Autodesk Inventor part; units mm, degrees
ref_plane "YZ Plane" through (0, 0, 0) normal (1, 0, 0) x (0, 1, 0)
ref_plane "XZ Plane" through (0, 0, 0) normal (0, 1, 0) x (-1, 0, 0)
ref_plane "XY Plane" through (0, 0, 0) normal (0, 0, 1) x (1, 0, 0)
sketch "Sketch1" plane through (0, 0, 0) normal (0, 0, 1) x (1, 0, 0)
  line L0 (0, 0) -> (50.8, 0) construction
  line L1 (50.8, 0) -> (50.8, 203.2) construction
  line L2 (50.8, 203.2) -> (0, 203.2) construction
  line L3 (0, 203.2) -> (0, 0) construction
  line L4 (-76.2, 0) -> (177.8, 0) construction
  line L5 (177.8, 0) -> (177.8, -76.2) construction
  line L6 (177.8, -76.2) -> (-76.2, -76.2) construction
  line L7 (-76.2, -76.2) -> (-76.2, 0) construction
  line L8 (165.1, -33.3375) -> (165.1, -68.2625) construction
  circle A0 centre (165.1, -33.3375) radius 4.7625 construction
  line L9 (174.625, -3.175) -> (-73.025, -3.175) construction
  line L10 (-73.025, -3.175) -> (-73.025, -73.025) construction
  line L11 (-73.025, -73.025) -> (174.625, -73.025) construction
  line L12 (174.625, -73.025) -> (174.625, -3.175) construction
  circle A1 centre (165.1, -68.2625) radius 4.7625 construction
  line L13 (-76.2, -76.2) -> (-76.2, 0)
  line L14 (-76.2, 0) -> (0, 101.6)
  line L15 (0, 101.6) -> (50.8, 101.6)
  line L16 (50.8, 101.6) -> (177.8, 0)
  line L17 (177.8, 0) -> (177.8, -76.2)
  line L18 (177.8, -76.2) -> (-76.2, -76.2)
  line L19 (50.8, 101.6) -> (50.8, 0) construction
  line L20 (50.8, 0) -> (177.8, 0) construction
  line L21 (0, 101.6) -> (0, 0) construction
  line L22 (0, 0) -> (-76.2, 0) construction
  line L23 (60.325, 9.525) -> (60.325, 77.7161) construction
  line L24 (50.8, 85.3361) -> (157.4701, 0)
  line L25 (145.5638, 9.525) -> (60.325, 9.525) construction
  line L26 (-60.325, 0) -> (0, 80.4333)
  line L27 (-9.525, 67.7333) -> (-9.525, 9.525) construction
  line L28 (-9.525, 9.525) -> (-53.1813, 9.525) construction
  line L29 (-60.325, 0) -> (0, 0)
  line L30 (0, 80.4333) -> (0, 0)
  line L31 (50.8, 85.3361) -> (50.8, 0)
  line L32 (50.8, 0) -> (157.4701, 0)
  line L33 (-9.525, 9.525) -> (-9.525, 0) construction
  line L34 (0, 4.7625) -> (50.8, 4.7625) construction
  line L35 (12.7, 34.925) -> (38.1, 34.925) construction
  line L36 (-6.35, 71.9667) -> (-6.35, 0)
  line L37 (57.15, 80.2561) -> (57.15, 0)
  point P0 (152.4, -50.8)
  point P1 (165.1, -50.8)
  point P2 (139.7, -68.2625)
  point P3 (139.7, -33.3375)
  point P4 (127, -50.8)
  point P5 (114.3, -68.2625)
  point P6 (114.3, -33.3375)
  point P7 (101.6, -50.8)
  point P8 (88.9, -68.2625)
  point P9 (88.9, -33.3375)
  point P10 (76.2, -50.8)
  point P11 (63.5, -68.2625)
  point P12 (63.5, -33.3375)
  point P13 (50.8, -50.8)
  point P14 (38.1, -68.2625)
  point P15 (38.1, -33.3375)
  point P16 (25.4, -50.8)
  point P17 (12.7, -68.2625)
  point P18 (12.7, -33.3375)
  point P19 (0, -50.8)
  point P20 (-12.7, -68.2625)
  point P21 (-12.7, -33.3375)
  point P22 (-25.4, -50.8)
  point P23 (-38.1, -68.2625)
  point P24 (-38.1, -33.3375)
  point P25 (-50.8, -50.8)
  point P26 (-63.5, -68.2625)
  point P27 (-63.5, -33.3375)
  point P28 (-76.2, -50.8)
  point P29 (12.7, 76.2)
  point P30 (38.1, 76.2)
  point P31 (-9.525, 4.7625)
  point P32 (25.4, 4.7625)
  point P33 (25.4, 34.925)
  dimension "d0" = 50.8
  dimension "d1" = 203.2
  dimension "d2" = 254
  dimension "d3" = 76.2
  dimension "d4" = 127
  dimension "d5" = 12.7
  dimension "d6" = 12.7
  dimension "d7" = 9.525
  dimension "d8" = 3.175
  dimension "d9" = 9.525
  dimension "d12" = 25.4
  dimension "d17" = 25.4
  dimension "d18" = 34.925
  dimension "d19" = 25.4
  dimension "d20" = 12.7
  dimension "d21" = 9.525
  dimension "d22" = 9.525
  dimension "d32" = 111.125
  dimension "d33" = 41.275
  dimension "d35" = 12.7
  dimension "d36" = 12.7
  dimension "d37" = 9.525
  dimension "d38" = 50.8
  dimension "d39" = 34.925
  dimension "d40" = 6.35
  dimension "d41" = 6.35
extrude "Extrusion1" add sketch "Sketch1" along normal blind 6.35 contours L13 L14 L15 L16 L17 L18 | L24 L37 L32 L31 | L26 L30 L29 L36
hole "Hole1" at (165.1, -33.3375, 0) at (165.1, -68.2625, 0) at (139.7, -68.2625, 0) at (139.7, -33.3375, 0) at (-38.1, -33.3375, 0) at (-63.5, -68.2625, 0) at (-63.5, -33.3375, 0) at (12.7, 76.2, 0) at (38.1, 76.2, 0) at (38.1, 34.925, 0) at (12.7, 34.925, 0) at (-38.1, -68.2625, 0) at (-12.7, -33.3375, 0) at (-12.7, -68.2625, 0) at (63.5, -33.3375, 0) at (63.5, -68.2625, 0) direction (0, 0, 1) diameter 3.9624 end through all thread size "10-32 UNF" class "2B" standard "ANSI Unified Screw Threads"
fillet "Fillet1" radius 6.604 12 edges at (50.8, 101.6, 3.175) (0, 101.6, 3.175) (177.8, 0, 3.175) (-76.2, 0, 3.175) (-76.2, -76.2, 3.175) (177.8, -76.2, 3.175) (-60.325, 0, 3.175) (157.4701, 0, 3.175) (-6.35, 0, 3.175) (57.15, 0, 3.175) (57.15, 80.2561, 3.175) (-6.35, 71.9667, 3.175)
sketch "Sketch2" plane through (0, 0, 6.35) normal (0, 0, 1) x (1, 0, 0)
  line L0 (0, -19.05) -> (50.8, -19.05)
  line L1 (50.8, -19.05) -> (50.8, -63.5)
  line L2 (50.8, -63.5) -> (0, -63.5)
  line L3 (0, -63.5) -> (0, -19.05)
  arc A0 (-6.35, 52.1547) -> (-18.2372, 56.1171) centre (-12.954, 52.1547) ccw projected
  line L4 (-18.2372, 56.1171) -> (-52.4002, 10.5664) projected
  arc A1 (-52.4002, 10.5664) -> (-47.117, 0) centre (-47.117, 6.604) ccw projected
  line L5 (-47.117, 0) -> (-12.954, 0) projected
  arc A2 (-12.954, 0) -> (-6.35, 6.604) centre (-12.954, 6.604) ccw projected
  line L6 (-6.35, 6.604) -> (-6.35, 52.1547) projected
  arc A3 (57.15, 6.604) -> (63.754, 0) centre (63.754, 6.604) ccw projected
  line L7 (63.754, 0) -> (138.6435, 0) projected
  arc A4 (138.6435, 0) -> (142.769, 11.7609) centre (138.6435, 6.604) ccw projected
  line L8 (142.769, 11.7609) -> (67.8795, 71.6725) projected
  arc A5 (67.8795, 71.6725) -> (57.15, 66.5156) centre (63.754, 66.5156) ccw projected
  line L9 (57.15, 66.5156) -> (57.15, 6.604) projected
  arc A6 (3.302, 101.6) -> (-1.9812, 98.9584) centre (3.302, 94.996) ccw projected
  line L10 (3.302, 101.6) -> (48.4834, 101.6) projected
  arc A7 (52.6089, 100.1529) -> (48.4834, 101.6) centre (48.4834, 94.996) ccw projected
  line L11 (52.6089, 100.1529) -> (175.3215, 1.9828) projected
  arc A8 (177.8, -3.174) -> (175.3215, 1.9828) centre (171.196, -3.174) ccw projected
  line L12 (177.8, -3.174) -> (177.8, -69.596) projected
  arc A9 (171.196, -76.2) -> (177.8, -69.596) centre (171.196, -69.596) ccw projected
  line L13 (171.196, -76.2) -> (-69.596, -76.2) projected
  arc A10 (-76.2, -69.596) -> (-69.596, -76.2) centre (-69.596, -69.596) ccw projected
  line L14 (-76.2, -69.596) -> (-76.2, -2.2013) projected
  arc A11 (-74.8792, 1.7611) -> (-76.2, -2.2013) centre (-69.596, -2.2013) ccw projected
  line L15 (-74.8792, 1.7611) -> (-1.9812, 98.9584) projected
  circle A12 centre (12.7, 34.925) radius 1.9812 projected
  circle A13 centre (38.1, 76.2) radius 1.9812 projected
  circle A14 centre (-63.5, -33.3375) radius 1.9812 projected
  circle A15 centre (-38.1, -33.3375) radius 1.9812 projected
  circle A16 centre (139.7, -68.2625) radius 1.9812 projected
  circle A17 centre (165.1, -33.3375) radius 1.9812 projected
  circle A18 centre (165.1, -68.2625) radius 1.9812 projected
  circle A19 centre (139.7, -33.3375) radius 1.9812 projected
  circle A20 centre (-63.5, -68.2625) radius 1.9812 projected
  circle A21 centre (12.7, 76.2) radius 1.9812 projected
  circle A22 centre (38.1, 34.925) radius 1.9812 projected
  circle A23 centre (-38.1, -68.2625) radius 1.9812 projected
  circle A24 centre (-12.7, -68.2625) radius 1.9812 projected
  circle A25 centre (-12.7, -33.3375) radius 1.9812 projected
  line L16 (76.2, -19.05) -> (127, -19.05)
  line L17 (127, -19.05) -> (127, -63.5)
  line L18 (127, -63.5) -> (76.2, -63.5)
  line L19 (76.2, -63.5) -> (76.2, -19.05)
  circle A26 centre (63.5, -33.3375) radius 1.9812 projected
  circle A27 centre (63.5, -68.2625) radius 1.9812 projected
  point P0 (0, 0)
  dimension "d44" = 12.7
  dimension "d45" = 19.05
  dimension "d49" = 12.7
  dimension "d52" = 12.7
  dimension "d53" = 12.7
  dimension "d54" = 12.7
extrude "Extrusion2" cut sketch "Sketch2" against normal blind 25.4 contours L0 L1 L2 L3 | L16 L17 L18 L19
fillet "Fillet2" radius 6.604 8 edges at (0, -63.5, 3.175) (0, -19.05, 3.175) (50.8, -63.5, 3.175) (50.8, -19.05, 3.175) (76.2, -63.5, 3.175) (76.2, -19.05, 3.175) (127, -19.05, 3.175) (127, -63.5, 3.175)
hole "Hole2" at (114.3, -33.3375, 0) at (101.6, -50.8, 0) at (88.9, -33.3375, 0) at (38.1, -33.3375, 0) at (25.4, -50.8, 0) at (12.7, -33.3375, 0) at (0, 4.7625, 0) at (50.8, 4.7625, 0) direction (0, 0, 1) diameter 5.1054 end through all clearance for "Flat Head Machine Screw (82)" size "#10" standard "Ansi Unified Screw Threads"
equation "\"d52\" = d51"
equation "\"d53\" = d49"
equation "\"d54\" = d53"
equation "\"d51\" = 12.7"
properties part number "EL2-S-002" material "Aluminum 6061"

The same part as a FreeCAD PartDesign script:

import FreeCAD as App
import Part
import Sketcher
Q = App.Units.Quantity


def edges_at(feature, points):
    """Names of the edges that pass closest to the given points."""
    edges = feature.Shape.Edges
    near = lambda p: min(range(len(edges)), key=lambda i: edges[i].distToShape(Part.Vertex(*p))[0])
    return sorted({f"Edge{near(p) + 1}" for p in points})


def add_polygon(sketch, points):
    """Adds a closed chain of lines whose ends are joined by coincident constraints."""
    first, n = sketch.GeometryCount, len(points)
    for a, b in zip(points, points[1:] + points[:1]):
        sketch.addGeometry(Part.LineSegment(App.Vector(*a, 0), App.Vector(*b, 0)), False)
    for i in range(n):
        sketch.addConstraint(Sketcher.Constraint("Coincident", first + i, 2, first + (i + 1) % n, 1))

doc = App.newDocument("Part")
params = doc.addObject("Spreadsheet::Sheet", "Params")
for row, (alias, value) in enumerate([
    ("sketch1_width", "10 in"),
    ("sketch1_width2", "2 in"),
    ("sketch1_height", "3 in"),
    ("sketch1_length", "5 in"),
    ("pad1_length", "0.25 in"),
    ("sketch2_diameter", "0.156 in"),
    ("hole_diameter", "0.156 in"),
    ("fillet_radius", "0.26 in"),
    ("sketch3_width", "2 in"),
    ("sketch3_height", "1.75 in"),
    ("pocket1_length", "1 in"),
    ("fillet2_radius", "0.26 in"),
    ("sketch4_diameter", "0.201 in"),
    ("hole2_diameter", "0.201 in"),
], start=1):
    params.set(f"A{row}", alias)
    params.set(f"B{row}", "=" + value)
    params.setAlias(f"B{row}", alias)

body = doc.addObject("PartDesign::Body", "Body")

sketch1 = body.newObject("Sketcher::SketchObject", "Sketch")
sketch1.AttachmentSupport = (doc.getObject("XY_Plane"), [""])
sketch1.MapMode = "FlatFace"
add_polygon(sketch1, [(-76, 0), (-76, -76), (178, -76), (178, 0), (51, 102), (0, 102)])
add_polygon(sketch1, [(-6, 0), (-60, 0), (-6, 72)])
add_polygon(sketch1, [(157, 0), (57, 0), (57, 80)])
sketch1.addConstraint([
    Sketcher.Constraint("Vertical", 0),
    Sketcher.Constraint("Horizontal", 1),
    Sketcher.Constraint("Vertical", 2),
    Sketcher.Constraint("Horizontal", 4),
    Sketcher.Constraint("Horizontal", 6),
    Sketcher.Constraint("Vertical", 8),
    Sketcher.Constraint("Horizontal", 9),
    Sketcher.Constraint("Vertical", 10),
    Sketcher.Constraint("PointOnObject", 2, 2, -1),
    Sketcher.Constraint("PointOnObject", 4, 2, -2),
    Sketcher.Constraint("PointOnObject", 5, 2, -1),
    Sketcher.Constraint("PointOnObject", 6, 2, -1),
    Sketcher.Constraint("PointOnObject", 9, 2, -1),
    Sketcher.Constraint("Parallel", 5, 7),
    Sketcher.Constraint("Parallel", 3, 11),
    Sketcher.Constraint("DistanceX", 1, 1, 1, 2, Q("10 in")),
    Sketcher.Constraint("DistanceX", 4, 2, 4, 1, Q("2 in")),
    Sketcher.Constraint("DistanceY", 0, 2, 0, 1, Q("3 in")),
    Sketcher.Constraint("Distance", 5, Q("5 in")),
    Sketcher.Constraint("DistanceX", 0, 2, -1, 1, Q("3 in")),
    Sketcher.Constraint("DistanceX", 7, 2, -1, 1, Q("0.25 in")),
    Sketcher.Constraint("DistanceX", 3, 2, 9, 2, Q("0.25 in")),
    Sketcher.Constraint("DistanceX", 6, 2, 3, 2, Q("4.375 in")),
    Sketcher.Constraint("DistanceX", 9, 2, 9, 1, Q("3.9496 in")),
])
sketch1.setExpression("Constraints[27]", "Params.sketch1_width")
sketch1.setExpression("Constraints[28]", "Params.sketch1_width2")
sketch1.setExpression("Constraints[29]", "Params.sketch1_height")
sketch1.setExpression("Constraints[30]", "Params.sketch1_length")
pad1 = body.newObject("PartDesign::Pad", "Pad")
pad1.Profile = sketch1
pad1.setExpression("Length", "Params.pad1_length")

sketch2 = body.newObject("Sketcher::SketchObject", "Sketch001")
sketch2.AttachmentSupport = (doc.getObject("XY_Plane"), [""])
sketch2.MapMode = "FlatFace"
sketch2.addGeometry([
    Part.Circle(App.Vector(165.1, -33.3, 0), App.Vector(0, 0, 1), 2),
    Part.Circle(App.Vector(165.1, -68.3, 0), App.Vector(0, 0, 1), 2),
    Part.Circle(App.Vector(139.7, -68.3, 0), App.Vector(0, 0, 1), 2),
    Part.Circle(App.Vector(139.7, -33.3, 0), App.Vector(0, 0, 1), 2),
    Part.Circle(App.Vector(-38.1, -33.3, 0), App.Vector(0, 0, 1), 2),
    Part.Circle(App.Vector(-63.5, -68.3, 0), App.Vector(0, 0, 1), 2),
    Part.Circle(App.Vector(-63.5, -33.3, 0), App.Vector(0, 0, 1), 2),
    Part.Circle(App.Vector(12.7, 76.2, 0), App.Vector(0, 0, 1), 2),
    Part.Circle(App.Vector(38.1, 76.2, 0), App.Vector(0, 0, 1), 2),
    Part.Circle(App.Vector(38.1, 34.9, 0), App.Vector(0, 0, 1), 2),
    Part.Circle(App.Vector(12.7, 34.9, 0), App.Vector(0, 0, 1), 2),
    Part.Circle(App.Vector(-38.1, -68.3, 0), App.Vector(0, 0, 1), 2),
    Part.Circle(App.Vector(-12.7, -33.3, 0), App.Vector(0, 0, 1), 2),
    Part.Circle(App.Vector(-12.7, -68.3, 0), App.Vector(0, 0, 1), 2),
    Part.Circle(App.Vector(63.5, -33.3, 0), App.Vector(0, 0, 1), 2),
    Part.Circle(App.Vector(63.5, -68.3, 0), App.Vector(0, 0, 1), 2),
], False)
sketch2.addConstraint([
    Sketcher.Constraint("Equal", 0, 1),
    Sketcher.Constraint("Equal", 1, 2),
    Sketcher.Constraint("Equal", 2, 3),
    Sketcher.Constraint("Equal", 3, 4),
    Sketcher.Constraint("Equal", 4, 5),
    Sketcher.Constraint("Equal", 5, 6),
    Sketcher.Constraint("Equal", 6, 7),
    Sketcher.Constraint("Equal", 7, 8),
    Sketcher.Constraint("Equal", 8, 9),
    Sketcher.Constraint("Equal", 9, 10),
    Sketcher.Constraint("Equal", 10, 11),
    Sketcher.Constraint("Equal", 11, 12),
    Sketcher.Constraint("Equal", 12, 13),
    Sketcher.Constraint("Equal", 13, 14),
    Sketcher.Constraint("Equal", 14, 15),
    Sketcher.Constraint("Symmetric", 6, 3, 14, 3, -2),
    Sketcher.Constraint("Symmetric", 5, 3, 15, 3, -2),
    Sketcher.Constraint("Horizontal", 1, 3, 2, 3),
    Sketcher.Constraint("Horizontal", 0, 3, 3, 3),
    Sketcher.Constraint("Horizontal", 3, 3, 4, 3),
    Sketcher.Constraint("Horizontal", 2, 3, 5, 3),
    Sketcher.Constraint("Horizontal", 4, 3, 6, 3),
    Sketcher.Constraint("Horizontal", 7, 3, 8, 3),
    Sketcher.Constraint("Horizontal", 9, 3, 10, 3),
    Sketcher.Constraint("Horizontal", 5, 3, 11, 3),
    Sketcher.Constraint("Horizontal", 6, 3, 12, 3),
    Sketcher.Constraint("Horizontal", 11, 3, 13, 3),
    Sketcher.Constraint("Vertical", 0, 3, 1, 3),
    Sketcher.Constraint("Vertical", 2, 3, 3, 3),
    Sketcher.Constraint("Vertical", 5, 3, 6, 3),
    Sketcher.Constraint("Vertical", 8, 3, 9, 3),
    Sketcher.Constraint("Vertical", 7, 3, 10, 3),
    Sketcher.Constraint("Vertical", 4, 3, 11, 3),
    Sketcher.Constraint("Vertical", 12, 3, 13, 3),
    Sketcher.Constraint("Diameter", 0, Q("0.156 in")),
    Sketcher.Constraint("DistanceY", -1, 1, 7, 3, Q("3 in")),
    Sketcher.Constraint("DistanceX", 2, 3, 1, 3, Q("1 in")),
    Sketcher.Constraint("DistanceX", 4, 3, 3, 3, Q("7 in")),
    Sketcher.Constraint("DistanceX", 5, 3, 4, 3, Q("1 in")),
    Sketcher.Constraint("DistanceX", 4, 3, 7, 3, Q("2 in")),
    Sketcher.Constraint("DistanceX", 7, 3, 8, 3, Q("1 in")),
    Sketcher.Constraint("DistanceX", 4, 3, 12, 3, Q("1 in")),
    Sketcher.Constraint("DistanceX", 9, 3, 14, 3, Q("1 in")),
    Sketcher.Constraint("DistanceY", 0, 3, -1, 1, Q("1.3125 in")),
    Sketcher.Constraint("DistanceY", 1, 3, -1, 1, Q("2.6875 in")),
    Sketcher.Constraint("DistanceY", -1, 1, 9, 3, Q("1.375 in")),
])
sketch2.setExpression("Constraints[34]", "Params.sketch2_diameter")
doc.recompute()
hole = body.newObject("PartDesign::Hole", "Hole")
hole.Profile = sketch2
hole.ThreadType = "None"
hole.setExpression("Diameter", "Params.hole_diameter")
hole.DepthType = "ThroughAll"
hole.Reversed = True
doc.recompute()

fillet = body.newObject("PartDesign::Fillet", "Fillet")
fillet.Base = (hole, edges_at(hole, [
    (50.8, 101.6, 3.175),
    (0, 101.6, 3.175),
    (177.8, 0, 3.175),
    (-76.2, 0, 3.175),
    (-76.2, -76.2, 3.175),
    (177.8, -76.2, 3.175),
    (-60.325, 0, 3.175),
    (157.47, 0, 3.175),
    (-6.35, 0, 3.175),
    (57.15, 0, 3.175),
    (57.15, 80.256, 3.175),
    (-6.35, 71.967, 3.175),
]))
fillet.setExpression("Radius", "Params.fillet_radius")

sketch3 = body.newObject("Sketcher::SketchObject", "Sketch002")
sketch3.AttachmentSupport = (doc.getObject("XY_Plane"), [""])
sketch3.MapMode = "FlatFace"
sketch3.AttachmentOffset = App.Placement(App.Vector(0, 0, 0.25 * 25.4), App.Rotation())
add_polygon(sketch3, [(51, -19), (0, -19), (0, -64), (51, -64)])
add_polygon(sketch3, [(127, -19), (76, -19), (76, -64), (127, -64)])
sketch3.addConstraint([
    Sketcher.Constraint("Horizontal", 0),
    Sketcher.Constraint("Vertical", 1),
    Sketcher.Constraint("Horizontal", 2),
    Sketcher.Constraint("Vertical", 3),
    Sketcher.Constraint("Horizontal", 4),
    Sketcher.Constraint("Vertical", 5),
    Sketcher.Constraint("Horizontal", 6),
    Sketcher.Constraint("Vertical", 7),
    Sketcher.Constraint("PointOnObject", 0, 2, -2),
    Sketcher.Constraint("Horizontal", 3, 2, 4, 2),
    Sketcher.Constraint("Horizontal", 2, 2, 5, 2),
    Sketcher.Constraint("Equal", 2, 4),
    Sketcher.Constraint("DistanceX", 0, 2, 0, 1, Q("2 in")),
    Sketcher.Constraint("DistanceY", 0, 2, -1, 1, Q("0.75 in")),
    Sketcher.Constraint("DistanceX", -1, 1, 4, 2, Q("3 in")),
    Sketcher.Constraint("DistanceY", 1, 2, 1, 1, Q("1.75 in")),
])
sketch3.setExpression("Constraints[20]", "Params.sketch3_width")
sketch3.setExpression("Constraints[23]", "Params.sketch3_height")
pocket1 = body.newObject("PartDesign::Pocket", "Pocket")
pocket1.Profile = sketch3
pocket1.setExpression("Length", "Params.pocket1_length")
doc.recompute()

fillet2 = body.newObject("PartDesign::Fillet", "Fillet001")
fillet2.Base = (pocket1, edges_at(pocket1, [
    (0, -63.5, 3.175),
    (0, -19.05, 3.175),
    (50.8, -63.5, 3.175),
    (50.8, -19.05, 3.175),
    (76.2, -63.5, 3.175),
    (76.2, -19.05, 3.175),
    (127, -19.05, 3.175),
    (127, -63.5, 3.175),
]))
fillet2.setExpression("Radius", "Params.fillet2_radius")

sketch4 = body.newObject("Sketcher::SketchObject", "Sketch003")
sketch4.AttachmentSupport = (doc.getObject("XY_Plane"), [""])
sketch4.MapMode = "FlatFace"
sketch4.addGeometry([
    Part.Circle(App.Vector(114.3, -33.3, 0), App.Vector(0, 0, 1), 2.6),
    Part.Circle(App.Vector(101.6, -50.8, 0), App.Vector(0, 0, 1), 2.6),
    Part.Circle(App.Vector(88.9, -33.3, 0), App.Vector(0, 0, 1), 2.6),
    Part.Circle(App.Vector(38.1, -33.3, 0), App.Vector(0, 0, 1), 2.6),
    Part.Circle(App.Vector(25.4, -50.8, 0), App.Vector(0, 0, 1), 2.6),
    Part.Circle(App.Vector(12.7, -33.3, 0), App.Vector(0, 0, 1), 2.6),
    Part.Circle(App.Vector(0, 4.8, 0), App.Vector(0, 0, 1), 2.6),
    Part.Circle(App.Vector(50.8, 4.8, 0), App.Vector(0, 0, 1), 2.6),
], False)
sketch4.addConstraint([
    Sketcher.Constraint("Equal", 0, 1),
    Sketcher.Constraint("Equal", 1, 2),
    Sketcher.Constraint("Equal", 2, 3),
    Sketcher.Constraint("Equal", 3, 4),
    Sketcher.Constraint("Equal", 4, 5),
    Sketcher.Constraint("Equal", 5, 6),
    Sketcher.Constraint("Equal", 6, 7),
    Sketcher.Constraint("PointOnObject", 6, 3, -2),
    Sketcher.Constraint("Horizontal", 0, 3, 2, 3),
    Sketcher.Constraint("Horizontal", 2, 3, 3, 3),
    Sketcher.Constraint("Horizontal", 1, 3, 4, 3),
    Sketcher.Constraint("Horizontal", 3, 3, 5, 3),
    Sketcher.Constraint("Horizontal", 6, 3, 7, 3),
    Sketcher.Constraint("Diameter", 0, Q("0.201 in")),
    Sketcher.Constraint("DistanceX", -1, 1, 1, 3, Q("4 in")),
    Sketcher.Constraint("DistanceY", 1, 3, -1, 1, Q("2 in")),
    Sketcher.Constraint("DistanceX", -1, 1, 4, 3, Q("1 in")),
    Sketcher.Constraint("DistanceX", -1, 1, 7, 3, Q("2 in")),
    Sketcher.Constraint("DistanceX", 2, 3, 0, 3, Q("1 in")),
    Sketcher.Constraint("DistanceX", 3, 3, 2, 3, Q("2 in")),
    Sketcher.Constraint("DistanceX", 5, 3, 3, 3, Q("1 in")),
    Sketcher.Constraint("DistanceX", -1, 1, 0, 3, Q("4.5 in")),
    Sketcher.Constraint("DistanceY", 5, 3, 6, 3, Q("1.5 in")),
    Sketcher.Constraint("DistanceY", 0, 3, -1, 1, Q("1.3125 in")),
])
sketch4.setExpression("Constraints[13]", "Params.sketch4_diameter")
doc.recompute()
hole2 = body.newObject("PartDesign::Hole", "Hole001")
hole2.Profile = sketch4
hole2.ThreadType = "None"
hole2.setExpression("Diameter", "Params.hole2_diameter")
hole2.DepthType = "ThroughAll"
hole2.Reversed = True

doc.recompute()
